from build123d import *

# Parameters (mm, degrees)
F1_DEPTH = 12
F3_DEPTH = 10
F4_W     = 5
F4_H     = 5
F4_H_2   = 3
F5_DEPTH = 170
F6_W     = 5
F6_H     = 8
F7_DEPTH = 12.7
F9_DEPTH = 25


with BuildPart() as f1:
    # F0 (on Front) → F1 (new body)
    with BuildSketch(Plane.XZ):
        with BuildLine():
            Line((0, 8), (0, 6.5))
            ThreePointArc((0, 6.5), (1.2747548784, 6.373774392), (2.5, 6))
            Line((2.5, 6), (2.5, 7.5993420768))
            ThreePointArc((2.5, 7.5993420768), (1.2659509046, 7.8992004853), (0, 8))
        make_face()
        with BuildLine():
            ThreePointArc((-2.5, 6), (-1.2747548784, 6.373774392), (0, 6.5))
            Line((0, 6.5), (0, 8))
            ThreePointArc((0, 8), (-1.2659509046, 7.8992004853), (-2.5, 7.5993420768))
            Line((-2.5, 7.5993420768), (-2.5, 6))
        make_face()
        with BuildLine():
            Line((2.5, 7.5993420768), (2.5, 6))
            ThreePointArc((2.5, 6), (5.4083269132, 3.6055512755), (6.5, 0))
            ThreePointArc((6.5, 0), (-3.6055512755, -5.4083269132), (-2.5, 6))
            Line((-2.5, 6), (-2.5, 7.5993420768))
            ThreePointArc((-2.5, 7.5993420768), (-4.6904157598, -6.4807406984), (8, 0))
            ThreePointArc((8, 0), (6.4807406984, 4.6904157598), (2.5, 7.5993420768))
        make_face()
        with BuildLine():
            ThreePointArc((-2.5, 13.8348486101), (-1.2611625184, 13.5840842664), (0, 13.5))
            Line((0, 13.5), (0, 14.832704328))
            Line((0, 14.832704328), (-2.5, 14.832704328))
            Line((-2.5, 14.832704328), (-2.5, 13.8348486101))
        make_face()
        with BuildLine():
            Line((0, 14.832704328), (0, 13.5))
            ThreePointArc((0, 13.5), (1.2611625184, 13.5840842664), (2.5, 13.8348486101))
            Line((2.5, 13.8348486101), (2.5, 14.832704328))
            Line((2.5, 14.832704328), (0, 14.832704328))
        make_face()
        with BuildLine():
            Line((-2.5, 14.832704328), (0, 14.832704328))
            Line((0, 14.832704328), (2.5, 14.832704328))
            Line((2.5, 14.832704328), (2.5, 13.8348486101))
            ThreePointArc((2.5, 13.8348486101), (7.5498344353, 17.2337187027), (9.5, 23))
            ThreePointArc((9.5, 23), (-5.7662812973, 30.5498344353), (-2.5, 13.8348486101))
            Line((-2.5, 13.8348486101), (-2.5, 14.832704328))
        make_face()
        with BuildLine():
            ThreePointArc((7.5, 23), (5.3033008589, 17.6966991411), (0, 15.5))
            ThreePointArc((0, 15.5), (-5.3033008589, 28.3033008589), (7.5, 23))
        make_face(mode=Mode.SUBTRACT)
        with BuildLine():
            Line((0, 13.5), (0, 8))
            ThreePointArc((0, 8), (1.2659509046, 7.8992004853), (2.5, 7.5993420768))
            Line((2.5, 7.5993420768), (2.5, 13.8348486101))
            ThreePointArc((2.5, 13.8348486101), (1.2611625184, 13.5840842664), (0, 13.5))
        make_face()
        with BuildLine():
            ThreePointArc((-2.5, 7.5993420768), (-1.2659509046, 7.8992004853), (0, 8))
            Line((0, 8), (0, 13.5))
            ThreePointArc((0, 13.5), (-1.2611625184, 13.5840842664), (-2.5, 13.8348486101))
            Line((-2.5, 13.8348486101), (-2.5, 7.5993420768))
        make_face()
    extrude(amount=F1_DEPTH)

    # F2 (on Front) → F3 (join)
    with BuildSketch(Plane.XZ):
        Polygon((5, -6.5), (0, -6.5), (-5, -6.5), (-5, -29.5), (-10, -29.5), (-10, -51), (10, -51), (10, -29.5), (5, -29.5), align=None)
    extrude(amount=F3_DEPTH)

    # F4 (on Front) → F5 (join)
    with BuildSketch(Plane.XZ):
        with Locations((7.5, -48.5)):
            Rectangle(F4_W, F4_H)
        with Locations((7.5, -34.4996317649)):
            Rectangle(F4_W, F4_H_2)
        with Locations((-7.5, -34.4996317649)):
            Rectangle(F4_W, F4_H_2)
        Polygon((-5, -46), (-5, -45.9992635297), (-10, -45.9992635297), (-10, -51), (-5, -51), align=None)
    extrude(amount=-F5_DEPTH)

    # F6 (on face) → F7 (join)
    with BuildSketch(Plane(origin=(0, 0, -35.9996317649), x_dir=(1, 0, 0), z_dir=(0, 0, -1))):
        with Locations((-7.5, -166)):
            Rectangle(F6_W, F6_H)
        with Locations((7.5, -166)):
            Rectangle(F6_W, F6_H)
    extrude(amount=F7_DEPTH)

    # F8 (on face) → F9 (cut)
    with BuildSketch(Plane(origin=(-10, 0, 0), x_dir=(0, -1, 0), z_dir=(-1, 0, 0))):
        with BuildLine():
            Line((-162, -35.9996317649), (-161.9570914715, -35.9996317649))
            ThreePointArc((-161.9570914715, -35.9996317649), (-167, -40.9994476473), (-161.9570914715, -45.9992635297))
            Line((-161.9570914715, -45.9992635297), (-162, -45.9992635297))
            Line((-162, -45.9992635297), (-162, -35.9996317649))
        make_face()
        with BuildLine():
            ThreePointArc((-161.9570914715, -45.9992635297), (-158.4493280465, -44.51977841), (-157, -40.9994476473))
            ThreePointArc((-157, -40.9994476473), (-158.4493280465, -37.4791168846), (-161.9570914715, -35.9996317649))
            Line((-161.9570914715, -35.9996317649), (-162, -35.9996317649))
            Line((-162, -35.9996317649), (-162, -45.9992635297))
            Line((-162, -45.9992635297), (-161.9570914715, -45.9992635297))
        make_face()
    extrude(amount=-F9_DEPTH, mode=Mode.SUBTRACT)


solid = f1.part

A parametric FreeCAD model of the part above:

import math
import FreeCAD as App
import Part
import Sketcher


def add_polygon(sketch, points):
    """Adds a closed chain of lines whose ends are joined by coincident constraints."""
    first, n = sketch.GeometryCount, len(points)
    for a, b in zip(points, points[1:] + points[:1]):
        sketch.addGeometry(Part.LineSegment(App.Vector(*a, 0), App.Vector(*b, 0)), False)
    for i in range(n):
        sketch.addConstraint(Sketcher.Constraint("Coincident", first + i, 2, first + (i + 1) % n, 1))

doc = App.newDocument("Part")
body = doc.addObject("PartDesign::Body", "Body")

sketch1 = doc.addObject("Sketcher::SketchObject", "Sketch")
body.addObject(sketch1)
sketch1.AttachmentSupport = (doc.XZ_Plane, [""])
sketch1.MapMode = "FlatFace"
sketch1.addGeometry([
    Part.ArcOfCircle(Part.Circle(App.Vector(0, 0, 0), App.Vector(0, 0, 1), 8), math.radians(108), math.radians(360)),
    Part.ArcOfCircle(Part.Circle(App.Vector(0, 0, 0), App.Vector(0, 0, 1), 8), math.radians(0), math.radians(72)),
    Part.LineSegment(App.Vector(2.5, 7.6, 0), App.Vector(2.5, 13.8, 0)),
    Part.ArcOfCircle(Part.Circle(App.Vector(0, 23, 0), App.Vector(0, 0, 1), 9.5), math.radians(-75), math.radians(0)),
    Part.ArcOfCircle(Part.Circle(App.Vector(0, 23, 0), App.Vector(0, 0, 1), 9.5), math.radians(0), math.radians(255)),
    Part.LineSegment(App.Vector(-2.5, 13.8, 0), App.Vector(-2.5, 7.6, 0)),
    Part.ArcOfCircle(Part.Circle(App.Vector(0, 0, 0), App.Vector(0, 0, 1), 6.5), math.radians(67), math.radians(90)),
    Part.ArcOfCircle(Part.Circle(App.Vector(0, 0, 0), App.Vector(0, 0, 1), 6.5), math.radians(0), math.radians(67)),
    Part.ArcOfCircle(Part.Circle(App.Vector(0, 0, 0), App.Vector(0, 0, 1), 6.5), math.radians(113), math.radians(360)),
    Part.ArcOfCircle(Part.Circle(App.Vector(0, 0, 0), App.Vector(0, 0, 1), 6.5), math.radians(90), math.radians(113)),
    Part.Circle(App.Vector(0, 23, 0), App.Vector(0, 0, 1), 7.5),
], False)
sketch1.addConstraint([
    Sketcher.Constraint("Tangent", 0, 2, 1, 1),
    Sketcher.Constraint("Coincident", 1, 2, 2, 1),
    Sketcher.Constraint("Coincident", 2, 2, 3, 1),
    Sketcher.Constraint("Tangent", 3, 2, 4, 1),
    Sketcher.Constraint("Coincident", 4, 2, 5, 1),
    Sketcher.Constraint("Coincident", 5, 2, 0, 1),
    Sketcher.Constraint("Tangent", 6, 1, 7, 2),
    Sketcher.Constraint("Tangent", 7, 1, 8, 2),
    Sketcher.Constraint("Tangent", 8, 1, 9, 2),
    Sketcher.Constraint("Tangent", 9, 1, 6, 2),
    Sketcher.Constraint("Vertical", 2),
    Sketcher.Constraint("Vertical", 5),
    Sketcher.Constraint("Coincident", 0, 3, -1, 1),
    Sketcher.Constraint("Coincident", 6, 3, -1, 1),
    Sketcher.Constraint("Coincident", 10, 3, 3, 3),
    Sketcher.Constraint("Equal", 0, 1),
    Sketcher.Constraint("Equal", 3, 4),
    Sketcher.Constraint("Equal", 6, 7),
    Sketcher.Constraint("Symmetric", 2, 2, 4, 2, -2),
    Sketcher.Constraint("PointOnObject", 0, 2, -1),
    Sketcher.Constraint("PointOnObject", 7, 1, -1),
    Sketcher.Constraint("PointOnObject", 9, 1, -2),
    Sketcher.Constraint("Horizontal", 10, 3, 3, 2),
    Sketcher.Constraint("Horizontal", 6, 1, 8, 1),
    Sketcher.Constraint("Vertical", 2, 2, 6, 1),
    Sketcher.Constraint("Diameter", 10, 15.0),
    Sketcher.Constraint("Radius", 0, 8.0),
    Sketcher.Constraint("Radius", 3, 9.5),
    Sketcher.Constraint("Radius", 6, 6.5),
    Sketcher.Constraint("DistanceY", -1, 1, 3, 3, 23.0),
    Sketcher.Constraint("DistanceY", -1, 1, 6, 1, 6.0),
])
pad1 = doc.addObject("PartDesign::Pad", "Pad")
body.addObject(pad1)
pad1.Profile = sketch1
pad1.Length = 12

sketch2 = doc.addObject("Sketcher::SketchObject", "Sketch001")
body.addObject(sketch2)
sketch2.AttachmentSupport = (doc.XZ_Plane, [""])
sketch2.MapMode = "FlatFace"
add_polygon(sketch2, [(5, -6), (-5, -6), (-5, -30), (-10, -30), (-10, -51), (10, -51), (10, -30), (5, -30)])
sketch2.addConstraint([
    Sketcher.Constraint("Horizontal", 0),
    Sketcher.Constraint("Vertical", 1),
    Sketcher.Constraint("Horizontal", 2),
    Sketcher.Constraint("Vertical", 3),
    Sketcher.Constraint("Horizontal", 4),
    Sketcher.Constraint("Vertical", 5),
    Sketcher.Constraint("Horizontal", 6),
    Sketcher.Constraint("Vertical", 7),
    Sketcher.Constraint("Symmetric", 2, 2, 5, 2, -2),
    Sketcher.Constraint("Equal", 2, 6),
    Sketcher.Constraint("DistanceX", 0, 2, 0, 1, 10.0),
    Sketcher.Constraint("DistanceX", 2, 2, 2, 1, 5.0),
    Sketcher.Constraint("DistanceY", 1, 2, 1, 1, 23.0),
    Sketcher.Constraint("DistanceY", 3, 2, 3, 1, 21.5),
    Sketcher.Constraint("DistanceY", 3, 2, -1, 1, 51.0),
])
pad2 = doc.addObject("PartDesign::Pad", "Pad001")
body.addObject(pad2)
pad2.Profile = sketch2
pad2.Length = 10

sketch3 = doc.addObject("Sketcher::SketchObject", "Sketch002")
body.addObject(sketch3)
sketch3.AttachmentSupport = (doc.XZ_Plane, [""])
sketch3.MapMode = "FlatFace"
add_polygon(sketch3, [(5, -46), (5, -51), (10, -51), (10, -46)])
add_polygon(sketch3, [(5, -33), (5, -36), (10, -36), (10, -33)])
add_polygon(sketch3, [(-10, -33), (-10, -36), (-5, -36), (-5, -33)])
add_polygon(sketch3, [(-5, -46), (-10, -46), (-10, -51), (-5, -51)])
sketch3.addConstraint([
    Sketcher.Constraint("Vertical", 0),
    Sketcher.Constraint("Horizontal", 1),
    Sketcher.Constraint("Vertical", 2),
    Sketcher.Constraint("Horizontal", 3),
    Sketcher.Constraint("Vertical", 4),
    Sketcher.Constraint("Horizontal", 5),
    Sketcher.Constraint("Vertical", 6),
    Sketcher.Constraint("Horizontal", 7),
    Sketcher.Constraint("Vertical", 8),
    Sketcher.Constraint("Horizontal", 9),
    Sketcher.Constraint("Vertical", 10),
    Sketcher.Constraint("Horizontal", 11),
    Sketcher.Constraint("Horizontal", 12),
    Sketcher.Constraint("Vertical", 13),
    Sketcher.Constraint("Horizontal", 14),
    Sketcher.Constraint("Vertical", 15),
    Sketcher.Constraint("Symmetric", 5, 2, 8, 2, -2),
    Sketcher.Constraint("Symmetric", 7, 2, 10, 2, -2),
    Sketcher.Constraint("Symmetric", 1, 2, 13, 2, -2),
    Sketcher.Constraint("Vertical", 3, 2, 4, 2),
    Sketcher.Constraint("Vertical", 2, 2, 5, 2),
    Sketcher.Constraint("Vertical", 10, 2, 14, 2),
    Sketcher.Constraint("Equal", 14, 0),
    Sketcher.Constraint("DistanceX", 1, 1, 1, 2, 5.0),
    Sketcher.Constraint("DistanceY", 4, 2, 4, 1, 3.0),
    Sketcher.Constraint("DistanceX", -1, 1, 0, 2, 5.0),
    Sketcher.Constraint("DistanceY", 0, 2, -1, 1, 51.0),
    Sketcher.Constraint("DistanceY", 13, 2, 13, 1, 5.000736),
    Sketcher.Constraint("DistanceY", 4, 2, -1, 1, 35.999632),
])
pad3 = doc.addObject("PartDesign::Pad", "Pad002")
body.addObject(pad3)
pad3.Profile = sketch3
pad3.Length = 170
pad3.Reversed = True

sketch4 = doc.addObject("Sketcher::SketchObject", "Sketch003")
body.addObject(sketch4)
sketch4.AttachmentSupport = (doc.XY_Plane, [""])
sketch4.MapMode = "FlatFace"
sketch4.AttachmentOffset = App.Placement(App.Vector(0, 0, -35.999632), App.Rotation())
add_polygon(sketch4, [(-10, 162), (-10, 170), (-5, 170), (-5, 162)])
add_polygon(sketch4, [(5, 162), (5, 170), (10, 170), (10, 162)])
sketch4.addConstraint([
    Sketcher.Constraint("Vertical", 0),
    Sketcher.Constraint("Horizontal", 1),
    Sketcher.Constraint("Vertical", 2),
    Sketcher.Constraint("Horizontal", 3),
    Sketcher.Constraint("Vertical", 4),
    Sketcher.Constraint("Horizontal", 5),
    Sketcher.Constraint("Vertical", 6),
    Sketcher.Constraint("Horizontal", 7),
    Sketcher.Constraint("Symmetric", 1, 2, 4, 2, -2),
    Sketcher.Constraint("Symmetric", 3, 2, 6, 2, -2),
    Sketcher.Constraint("DistanceX", 1, 1, 1, 2, 5.0),
    Sketcher.Constraint("DistanceY", 0, 1, 0, 2, 8.0),
    Sketcher.Constraint("DistanceX", 0, 2, -1, 1, 10.0),
    Sketcher.Constraint("DistanceY", -1, 1, 0, 2, 170.0),
])
pad4 = doc.addObject("PartDesign::Pad", "Pad003")
body.addObject(pad4)
pad4.Profile = sketch4
pad4.Length = 12.7
pad4.Reversed = True

sketch5 = doc.addObject("Sketcher::SketchObject", "Sketch004")
body.addObject(sketch5)
sketch5.AttachmentSupport = (doc.YZ_Plane, [""])
sketch5.MapMode = "FlatFace"
sketch5.AttachmentOffset = App.Placement(App.Vector(0, 0, -10), App.Rotation())
sketch5.addGeometry([
    Part.ArcOfCircle(Part.Circle(App.Vector(162, -41, 0), App.Vector(0, 0, 1), 5), math.radians(-90), math.radians(90)),
    Part.ArcOfCircle(Part.Circle(App.Vector(162, -41, 0), App.Vector(0, 0, 1), 5), math.radians(180), math.radians(270)),
    Part.ArcOfCircle(Part.Circle(App.Vector(162, -41, 0), App.Vector(0, 0, 1), 5), math.radians(90), math.radians(180)),
], False)
sketch5.addConstraint([
    Sketcher.Constraint("Tangent", 0, 1, 1, 2),
    Sketcher.Constraint("Tangent", 1, 1, 2, 2),
    Sketcher.Constraint("Tangent", 2, 1, 0, 2),
    Sketcher.Constraint("Horizontal", 2, 3, 1, 1),
    Sketcher.Constraint("Vertical", 0, 1, 2, 1),
    Sketcher.Constraint("Radius", 0, 5.0),
    Sketcher.Constraint("DistanceX", -1, 1, 0, 3, 162.0),
    Sketcher.Constraint("DistanceX", -1, 1, 0, 1, 161.957091),
    Sketcher.Constraint("DistanceY", 2, 1, -1, 1, 35.999632),
])
pocket1 = doc.addObject("PartDesign::Pocket", "Pocket")
body.addObject(pocket1)
pocket1.Profile = sketch5
pocket1.Length = 25
pocket1.Reversed = True

doc.recompute()
